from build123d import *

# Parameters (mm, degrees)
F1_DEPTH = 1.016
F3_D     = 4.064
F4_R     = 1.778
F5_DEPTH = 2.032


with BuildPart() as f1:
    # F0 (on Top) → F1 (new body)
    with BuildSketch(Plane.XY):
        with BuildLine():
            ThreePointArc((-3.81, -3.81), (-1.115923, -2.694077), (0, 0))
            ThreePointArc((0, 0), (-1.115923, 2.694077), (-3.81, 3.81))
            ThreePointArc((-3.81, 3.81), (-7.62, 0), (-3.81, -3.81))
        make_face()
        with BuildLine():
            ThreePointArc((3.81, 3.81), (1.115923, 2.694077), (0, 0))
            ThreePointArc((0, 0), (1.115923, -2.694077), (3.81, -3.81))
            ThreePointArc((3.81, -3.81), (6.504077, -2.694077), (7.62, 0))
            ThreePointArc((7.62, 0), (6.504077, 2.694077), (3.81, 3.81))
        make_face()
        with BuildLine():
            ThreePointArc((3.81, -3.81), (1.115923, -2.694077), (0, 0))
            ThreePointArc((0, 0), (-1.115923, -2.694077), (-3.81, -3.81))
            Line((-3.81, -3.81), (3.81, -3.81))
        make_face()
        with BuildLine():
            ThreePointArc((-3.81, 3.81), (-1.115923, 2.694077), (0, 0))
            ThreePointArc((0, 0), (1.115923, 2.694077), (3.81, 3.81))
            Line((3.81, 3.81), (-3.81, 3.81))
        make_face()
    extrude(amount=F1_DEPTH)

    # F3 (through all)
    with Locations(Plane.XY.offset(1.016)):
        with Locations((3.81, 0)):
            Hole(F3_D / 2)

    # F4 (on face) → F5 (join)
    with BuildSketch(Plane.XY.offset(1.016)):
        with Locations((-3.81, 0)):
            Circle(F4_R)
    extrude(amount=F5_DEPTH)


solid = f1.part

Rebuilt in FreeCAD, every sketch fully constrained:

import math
import FreeCAD as App
import Part
import Sketcher
from FreeCAD import Vector
Q = App.Units.Quantity

doc = App.newDocument("Part")
body = doc.addObject("PartDesign::Body", "Body")

# Sketch on XY plane
sketch1 = body.newObject("Sketcher::SketchObject", "Sketch")
sketch1.AttachmentSupport = (doc.getObject("XY_Plane"), [""])
sketch1.MapMode = "FlatFace"
sketch1.addGeometry(Part.ArcOfCircle(Part.Circle(Vector(-3.8, 0, 0), Vector(0, 0, 1), 3.8), math.radians(90), math.radians(270)), False)
sketch1.addGeometry(Part.LineSegment(Vector(-3.8, -3.8, 0), Vector(3.8, -3.8, 0)), False)
sketch1.addGeometry(Part.ArcOfCircle(Part.Circle(Vector(3.8, 0, 0), Vector(0, 0, 1), 3.8), math.radians(-90), math.radians(0)), False)
sketch1.addGeometry(Part.ArcOfCircle(Part.Circle(Vector(3.8, 0, 0), Vector(0, 0, 1), 3.8), math.radians(0), math.radians(90)), False)
sketch1.addGeometry(Part.LineSegment(Vector(3.8, 3.8, 0), Vector(-3.8, 3.8, 0)), False)
sketch1.addConstraint(Sketcher.Constraint("Tangent", 0, 2, 1, 1))
sketch1.addConstraint(Sketcher.Constraint("Tangent", 1, 2, 2, 1))
sketch1.addConstraint(Sketcher.Constraint("Tangent", 2, 2, 3, 1))
sketch1.addConstraint(Sketcher.Constraint("Tangent", 3, 2, 4, 1))
sketch1.addConstraint(Sketcher.Constraint("Tangent", 4, 2, 0, 1))
sketch1.addConstraint(Sketcher.Constraint("Horizontal", 1))
sketch1.addConstraint(Sketcher.Constraint("Horizontal", 4))
sketch1.addConstraint(Sketcher.Constraint("Equal", 0, 2))
sketch1.addConstraint(Sketcher.Constraint("Symmetric", 0, 3, 2, 3, -1, 1))
sketch1.addConstraint(Sketcher.Constraint("PointOnObject", 2, 2, -1))
sketch1.addConstraint(Sketcher.Constraint("Radius", 0, Q("0.15 in")))
sketch1.addConstraint(Sketcher.Constraint("DistanceX", 1, 1, 1, 2, Q("0.3 in")))
pad1 = body.newObject("PartDesign::Pad", "Pad")
pad1.Profile = sketch1
pad1.Length = Q("0.04 in")

# Sketch on XY plane
sketch2 = body.newObject("Sketcher::SketchObject", "Sketch001")
sketch2.AttachmentSupport = (doc.getObject("XY_Plane"), [""])
sketch2.MapMode = "FlatFace"
sketch2.AttachmentOffset = App.Placement(Vector(0, 0, 0.04 * 25.4), App.Rotation())
sketch2.addGeometry(Part.Circle(Vector(3.8, 0, 0), Vector(0, 0, 1), 2), False)
sketch2.addConstraint(Sketcher.Constraint("PointOnObject", 0, 3, -1))
sketch2.addConstraint(Sketcher.Constraint("Diameter", 0, Q("0.16 in")))
sketch2.addConstraint(Sketcher.Constraint("DistanceX", -1, 1, 0, 3, Q("0.15 in")))
doc.recompute()
hole = body.newObject("PartDesign::Hole", "Hole")
hole.Profile = sketch2
hole.ThreadType = "None"
hole.Diameter = Q("0.16 in")
hole.DepthType = "ThroughAll"

# Sketch on XY plane
sketch3 = body.newObject("Sketcher::SketchObject", "Sketch002")
sketch3.AttachmentSupport = (doc.getObject("XY_Plane"), [""])
sketch3.MapMode = "FlatFace"
sketch3.AttachmentOffset = App.Placement(Vector(0, 0, 0.04 * 25.4), App.Rotation())
sketch3.addGeometry(Part.Circle(Vector(-3.8, 0, 0), Vector(0, 0, 1), 1.8), False)
sketch3.addConstraint(Sketcher.Constraint("PointOnObject", 0, 3, -1))
sketch3.addConstraint(Sketcher.Constraint("Diameter", 0, Q("0.14 in")))
sketch3.addConstraint(Sketcher.Constraint("DistanceX", 0, 3, -1, 1, Q("0.15 in")))
pad2 = body.newObject("PartDesign::Pad", "Pad001")
pad2.Profile = sketch3
pad2.Length = Q("0.08 in")

doc.recompute()
